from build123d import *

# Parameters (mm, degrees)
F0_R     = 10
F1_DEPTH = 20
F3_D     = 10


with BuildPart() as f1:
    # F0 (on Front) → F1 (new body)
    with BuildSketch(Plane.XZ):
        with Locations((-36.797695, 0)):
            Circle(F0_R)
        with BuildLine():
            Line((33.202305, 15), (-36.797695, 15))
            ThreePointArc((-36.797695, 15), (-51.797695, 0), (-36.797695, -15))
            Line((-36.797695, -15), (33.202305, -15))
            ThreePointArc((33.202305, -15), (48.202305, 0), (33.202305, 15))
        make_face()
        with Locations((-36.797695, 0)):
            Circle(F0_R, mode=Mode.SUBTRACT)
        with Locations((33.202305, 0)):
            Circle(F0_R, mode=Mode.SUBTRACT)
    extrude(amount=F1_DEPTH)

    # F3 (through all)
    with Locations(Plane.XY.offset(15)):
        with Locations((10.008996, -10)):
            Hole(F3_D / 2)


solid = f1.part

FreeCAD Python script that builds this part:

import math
import FreeCAD as App
import Part
import Sketcher

V = App.Vector
Q = App.Units.Quantity

doc = App.newDocument("Part")
params = doc.addObject("Spreadsheet::Sheet", "Params")
for row, (alias, value) in enumerate([
    ("sketch1_diameter", "20 mm"),
    ("sketch1_radius", "15 mm"),
    ("sketch1_width", "70 mm"),
    ("pad1_length", "20 mm"),
    ("sketch2_diameter", "10 mm"),
    ("hole_diameter", "10 mm"),
], start=1):
    params.set(f"A{row}", alias)
    params.set(f"B{row}", "=" + value)
    params.setAlias(f"B{row}", alias)

body = doc.addObject("PartDesign::Body", "Body")

sketch1 = body.newObject("Sketcher::SketchObject", "Sketch")
sketch1.AttachmentSupport = (doc.getObject("XZ_Plane"), [""])
sketch1.MapMode = "FlatFace"
sketch1.addGeometry(Part.LineSegment(V(33, 15, 0), V(-37, 15, 0)), False)
sketch1.addGeometry(Part.ArcOfCircle(Part.Circle(V(-37, 0, 0), V(0, 0, 1), 15), math.radians(90), math.radians(270)), False)
sketch1.addGeometry(Part.LineSegment(V(-37, -15, 0), V(33, -15, 0)), False)
sketch1.addGeometry(Part.ArcOfCircle(Part.Circle(V(33, 0, 0), V(0, 0, 1), 15), math.radians(-90), math.radians(90)), False)
sketch1.addGeometry(Part.Circle(V(-37, 0, 0), V(0, 0, 1), 10), False)
sketch1.addGeometry(Part.Circle(V(33, 0, 0), V(0, 0, 1), 10), False)
sketch1.addConstraint(Sketcher.Constraint("Tangent", 0, 2, 1, 1))
sketch1.addConstraint(Sketcher.Constraint("Tangent", 1, 2, 2, 1))
sketch1.addConstraint(Sketcher.Constraint("Tangent", 2, 2, 3, 1))
sketch1.addConstraint(Sketcher.Constraint("Tangent", 3, 2, 0, 1))
sketch1.addConstraint(Sketcher.Constraint("Horizontal", 0))
sketch1.addConstraint(Sketcher.Constraint("Horizontal", 2))
sketch1.addConstraint(Sketcher.Constraint("Coincident", 4, 3, 1, 3))
sketch1.addConstraint(Sketcher.Constraint("Coincident", 5, 3, 3, 3))
sketch1.addConstraint(Sketcher.Constraint("Equal", 4, 5))
sketch1.addConstraint(Sketcher.Constraint("PointOnObject", 1, 3, -1))
sketch1.addConstraint(Sketcher.Constraint("Diameter", 4, Q("20 mm")))
sketch1.addConstraint(Sketcher.Constraint("Radius", 1, Q("15 mm")))
sketch1.addConstraint(Sketcher.Constraint("DistanceX", 0, 2, 0, 1, Q("70 mm")))
sketch1.addConstraint(Sketcher.Constraint("DistanceX", 1, 3, -1, 1, Q("36.797695 mm")))
sketch1.setExpression("Constraints[10]", "Params.sketch1_diameter")
sketch1.setExpression("Constraints[11]", "Params.sketch1_radius")
sketch1.setExpression("Constraints[12]", "Params.sketch1_width")
pad1 = body.newObject("PartDesign::Pad", "Pad")
pad1.Profile = sketch1
pad1.setExpression("Length", "Params.pad1_length")

sketch2 = body.newObject("Sketcher::SketchObject", "Sketch001")
sketch2.AttachmentSupport = (doc.getObject("XY_Plane"), [""])
sketch2.MapMode = "FlatFace"
sketch2.AttachmentOffset = App.Placement(V(0, 0, 15), App.Rotation())
sketch2.addGeometry(Part.Circle(V(10, -10, 0), V(0, 0, 1), 5), False)
sketch2.addConstraint(Sketcher.Constraint("Diameter", 0, Q("10 mm")))
sketch2.addConstraint(Sketcher.Constraint("DistanceY", 0, 3, -1, 1, Q("10 mm")))
sketch2.addConstraint(Sketcher.Constraint("DistanceX", -1, 1, 0, 3, Q("10.008996 mm")))
sketch2.setExpression("Constraints[0]", "Params.sketch2_diameter")
doc.recompute()
hole = body.newObject("PartDesign::Hole", "Hole")
hole.Profile = sketch2
hole.ThreadType = "None"
hole.setExpression("Diameter", "Params.hole_diameter")
hole.DepthType = "ThroughAll"

doc.recompute()
